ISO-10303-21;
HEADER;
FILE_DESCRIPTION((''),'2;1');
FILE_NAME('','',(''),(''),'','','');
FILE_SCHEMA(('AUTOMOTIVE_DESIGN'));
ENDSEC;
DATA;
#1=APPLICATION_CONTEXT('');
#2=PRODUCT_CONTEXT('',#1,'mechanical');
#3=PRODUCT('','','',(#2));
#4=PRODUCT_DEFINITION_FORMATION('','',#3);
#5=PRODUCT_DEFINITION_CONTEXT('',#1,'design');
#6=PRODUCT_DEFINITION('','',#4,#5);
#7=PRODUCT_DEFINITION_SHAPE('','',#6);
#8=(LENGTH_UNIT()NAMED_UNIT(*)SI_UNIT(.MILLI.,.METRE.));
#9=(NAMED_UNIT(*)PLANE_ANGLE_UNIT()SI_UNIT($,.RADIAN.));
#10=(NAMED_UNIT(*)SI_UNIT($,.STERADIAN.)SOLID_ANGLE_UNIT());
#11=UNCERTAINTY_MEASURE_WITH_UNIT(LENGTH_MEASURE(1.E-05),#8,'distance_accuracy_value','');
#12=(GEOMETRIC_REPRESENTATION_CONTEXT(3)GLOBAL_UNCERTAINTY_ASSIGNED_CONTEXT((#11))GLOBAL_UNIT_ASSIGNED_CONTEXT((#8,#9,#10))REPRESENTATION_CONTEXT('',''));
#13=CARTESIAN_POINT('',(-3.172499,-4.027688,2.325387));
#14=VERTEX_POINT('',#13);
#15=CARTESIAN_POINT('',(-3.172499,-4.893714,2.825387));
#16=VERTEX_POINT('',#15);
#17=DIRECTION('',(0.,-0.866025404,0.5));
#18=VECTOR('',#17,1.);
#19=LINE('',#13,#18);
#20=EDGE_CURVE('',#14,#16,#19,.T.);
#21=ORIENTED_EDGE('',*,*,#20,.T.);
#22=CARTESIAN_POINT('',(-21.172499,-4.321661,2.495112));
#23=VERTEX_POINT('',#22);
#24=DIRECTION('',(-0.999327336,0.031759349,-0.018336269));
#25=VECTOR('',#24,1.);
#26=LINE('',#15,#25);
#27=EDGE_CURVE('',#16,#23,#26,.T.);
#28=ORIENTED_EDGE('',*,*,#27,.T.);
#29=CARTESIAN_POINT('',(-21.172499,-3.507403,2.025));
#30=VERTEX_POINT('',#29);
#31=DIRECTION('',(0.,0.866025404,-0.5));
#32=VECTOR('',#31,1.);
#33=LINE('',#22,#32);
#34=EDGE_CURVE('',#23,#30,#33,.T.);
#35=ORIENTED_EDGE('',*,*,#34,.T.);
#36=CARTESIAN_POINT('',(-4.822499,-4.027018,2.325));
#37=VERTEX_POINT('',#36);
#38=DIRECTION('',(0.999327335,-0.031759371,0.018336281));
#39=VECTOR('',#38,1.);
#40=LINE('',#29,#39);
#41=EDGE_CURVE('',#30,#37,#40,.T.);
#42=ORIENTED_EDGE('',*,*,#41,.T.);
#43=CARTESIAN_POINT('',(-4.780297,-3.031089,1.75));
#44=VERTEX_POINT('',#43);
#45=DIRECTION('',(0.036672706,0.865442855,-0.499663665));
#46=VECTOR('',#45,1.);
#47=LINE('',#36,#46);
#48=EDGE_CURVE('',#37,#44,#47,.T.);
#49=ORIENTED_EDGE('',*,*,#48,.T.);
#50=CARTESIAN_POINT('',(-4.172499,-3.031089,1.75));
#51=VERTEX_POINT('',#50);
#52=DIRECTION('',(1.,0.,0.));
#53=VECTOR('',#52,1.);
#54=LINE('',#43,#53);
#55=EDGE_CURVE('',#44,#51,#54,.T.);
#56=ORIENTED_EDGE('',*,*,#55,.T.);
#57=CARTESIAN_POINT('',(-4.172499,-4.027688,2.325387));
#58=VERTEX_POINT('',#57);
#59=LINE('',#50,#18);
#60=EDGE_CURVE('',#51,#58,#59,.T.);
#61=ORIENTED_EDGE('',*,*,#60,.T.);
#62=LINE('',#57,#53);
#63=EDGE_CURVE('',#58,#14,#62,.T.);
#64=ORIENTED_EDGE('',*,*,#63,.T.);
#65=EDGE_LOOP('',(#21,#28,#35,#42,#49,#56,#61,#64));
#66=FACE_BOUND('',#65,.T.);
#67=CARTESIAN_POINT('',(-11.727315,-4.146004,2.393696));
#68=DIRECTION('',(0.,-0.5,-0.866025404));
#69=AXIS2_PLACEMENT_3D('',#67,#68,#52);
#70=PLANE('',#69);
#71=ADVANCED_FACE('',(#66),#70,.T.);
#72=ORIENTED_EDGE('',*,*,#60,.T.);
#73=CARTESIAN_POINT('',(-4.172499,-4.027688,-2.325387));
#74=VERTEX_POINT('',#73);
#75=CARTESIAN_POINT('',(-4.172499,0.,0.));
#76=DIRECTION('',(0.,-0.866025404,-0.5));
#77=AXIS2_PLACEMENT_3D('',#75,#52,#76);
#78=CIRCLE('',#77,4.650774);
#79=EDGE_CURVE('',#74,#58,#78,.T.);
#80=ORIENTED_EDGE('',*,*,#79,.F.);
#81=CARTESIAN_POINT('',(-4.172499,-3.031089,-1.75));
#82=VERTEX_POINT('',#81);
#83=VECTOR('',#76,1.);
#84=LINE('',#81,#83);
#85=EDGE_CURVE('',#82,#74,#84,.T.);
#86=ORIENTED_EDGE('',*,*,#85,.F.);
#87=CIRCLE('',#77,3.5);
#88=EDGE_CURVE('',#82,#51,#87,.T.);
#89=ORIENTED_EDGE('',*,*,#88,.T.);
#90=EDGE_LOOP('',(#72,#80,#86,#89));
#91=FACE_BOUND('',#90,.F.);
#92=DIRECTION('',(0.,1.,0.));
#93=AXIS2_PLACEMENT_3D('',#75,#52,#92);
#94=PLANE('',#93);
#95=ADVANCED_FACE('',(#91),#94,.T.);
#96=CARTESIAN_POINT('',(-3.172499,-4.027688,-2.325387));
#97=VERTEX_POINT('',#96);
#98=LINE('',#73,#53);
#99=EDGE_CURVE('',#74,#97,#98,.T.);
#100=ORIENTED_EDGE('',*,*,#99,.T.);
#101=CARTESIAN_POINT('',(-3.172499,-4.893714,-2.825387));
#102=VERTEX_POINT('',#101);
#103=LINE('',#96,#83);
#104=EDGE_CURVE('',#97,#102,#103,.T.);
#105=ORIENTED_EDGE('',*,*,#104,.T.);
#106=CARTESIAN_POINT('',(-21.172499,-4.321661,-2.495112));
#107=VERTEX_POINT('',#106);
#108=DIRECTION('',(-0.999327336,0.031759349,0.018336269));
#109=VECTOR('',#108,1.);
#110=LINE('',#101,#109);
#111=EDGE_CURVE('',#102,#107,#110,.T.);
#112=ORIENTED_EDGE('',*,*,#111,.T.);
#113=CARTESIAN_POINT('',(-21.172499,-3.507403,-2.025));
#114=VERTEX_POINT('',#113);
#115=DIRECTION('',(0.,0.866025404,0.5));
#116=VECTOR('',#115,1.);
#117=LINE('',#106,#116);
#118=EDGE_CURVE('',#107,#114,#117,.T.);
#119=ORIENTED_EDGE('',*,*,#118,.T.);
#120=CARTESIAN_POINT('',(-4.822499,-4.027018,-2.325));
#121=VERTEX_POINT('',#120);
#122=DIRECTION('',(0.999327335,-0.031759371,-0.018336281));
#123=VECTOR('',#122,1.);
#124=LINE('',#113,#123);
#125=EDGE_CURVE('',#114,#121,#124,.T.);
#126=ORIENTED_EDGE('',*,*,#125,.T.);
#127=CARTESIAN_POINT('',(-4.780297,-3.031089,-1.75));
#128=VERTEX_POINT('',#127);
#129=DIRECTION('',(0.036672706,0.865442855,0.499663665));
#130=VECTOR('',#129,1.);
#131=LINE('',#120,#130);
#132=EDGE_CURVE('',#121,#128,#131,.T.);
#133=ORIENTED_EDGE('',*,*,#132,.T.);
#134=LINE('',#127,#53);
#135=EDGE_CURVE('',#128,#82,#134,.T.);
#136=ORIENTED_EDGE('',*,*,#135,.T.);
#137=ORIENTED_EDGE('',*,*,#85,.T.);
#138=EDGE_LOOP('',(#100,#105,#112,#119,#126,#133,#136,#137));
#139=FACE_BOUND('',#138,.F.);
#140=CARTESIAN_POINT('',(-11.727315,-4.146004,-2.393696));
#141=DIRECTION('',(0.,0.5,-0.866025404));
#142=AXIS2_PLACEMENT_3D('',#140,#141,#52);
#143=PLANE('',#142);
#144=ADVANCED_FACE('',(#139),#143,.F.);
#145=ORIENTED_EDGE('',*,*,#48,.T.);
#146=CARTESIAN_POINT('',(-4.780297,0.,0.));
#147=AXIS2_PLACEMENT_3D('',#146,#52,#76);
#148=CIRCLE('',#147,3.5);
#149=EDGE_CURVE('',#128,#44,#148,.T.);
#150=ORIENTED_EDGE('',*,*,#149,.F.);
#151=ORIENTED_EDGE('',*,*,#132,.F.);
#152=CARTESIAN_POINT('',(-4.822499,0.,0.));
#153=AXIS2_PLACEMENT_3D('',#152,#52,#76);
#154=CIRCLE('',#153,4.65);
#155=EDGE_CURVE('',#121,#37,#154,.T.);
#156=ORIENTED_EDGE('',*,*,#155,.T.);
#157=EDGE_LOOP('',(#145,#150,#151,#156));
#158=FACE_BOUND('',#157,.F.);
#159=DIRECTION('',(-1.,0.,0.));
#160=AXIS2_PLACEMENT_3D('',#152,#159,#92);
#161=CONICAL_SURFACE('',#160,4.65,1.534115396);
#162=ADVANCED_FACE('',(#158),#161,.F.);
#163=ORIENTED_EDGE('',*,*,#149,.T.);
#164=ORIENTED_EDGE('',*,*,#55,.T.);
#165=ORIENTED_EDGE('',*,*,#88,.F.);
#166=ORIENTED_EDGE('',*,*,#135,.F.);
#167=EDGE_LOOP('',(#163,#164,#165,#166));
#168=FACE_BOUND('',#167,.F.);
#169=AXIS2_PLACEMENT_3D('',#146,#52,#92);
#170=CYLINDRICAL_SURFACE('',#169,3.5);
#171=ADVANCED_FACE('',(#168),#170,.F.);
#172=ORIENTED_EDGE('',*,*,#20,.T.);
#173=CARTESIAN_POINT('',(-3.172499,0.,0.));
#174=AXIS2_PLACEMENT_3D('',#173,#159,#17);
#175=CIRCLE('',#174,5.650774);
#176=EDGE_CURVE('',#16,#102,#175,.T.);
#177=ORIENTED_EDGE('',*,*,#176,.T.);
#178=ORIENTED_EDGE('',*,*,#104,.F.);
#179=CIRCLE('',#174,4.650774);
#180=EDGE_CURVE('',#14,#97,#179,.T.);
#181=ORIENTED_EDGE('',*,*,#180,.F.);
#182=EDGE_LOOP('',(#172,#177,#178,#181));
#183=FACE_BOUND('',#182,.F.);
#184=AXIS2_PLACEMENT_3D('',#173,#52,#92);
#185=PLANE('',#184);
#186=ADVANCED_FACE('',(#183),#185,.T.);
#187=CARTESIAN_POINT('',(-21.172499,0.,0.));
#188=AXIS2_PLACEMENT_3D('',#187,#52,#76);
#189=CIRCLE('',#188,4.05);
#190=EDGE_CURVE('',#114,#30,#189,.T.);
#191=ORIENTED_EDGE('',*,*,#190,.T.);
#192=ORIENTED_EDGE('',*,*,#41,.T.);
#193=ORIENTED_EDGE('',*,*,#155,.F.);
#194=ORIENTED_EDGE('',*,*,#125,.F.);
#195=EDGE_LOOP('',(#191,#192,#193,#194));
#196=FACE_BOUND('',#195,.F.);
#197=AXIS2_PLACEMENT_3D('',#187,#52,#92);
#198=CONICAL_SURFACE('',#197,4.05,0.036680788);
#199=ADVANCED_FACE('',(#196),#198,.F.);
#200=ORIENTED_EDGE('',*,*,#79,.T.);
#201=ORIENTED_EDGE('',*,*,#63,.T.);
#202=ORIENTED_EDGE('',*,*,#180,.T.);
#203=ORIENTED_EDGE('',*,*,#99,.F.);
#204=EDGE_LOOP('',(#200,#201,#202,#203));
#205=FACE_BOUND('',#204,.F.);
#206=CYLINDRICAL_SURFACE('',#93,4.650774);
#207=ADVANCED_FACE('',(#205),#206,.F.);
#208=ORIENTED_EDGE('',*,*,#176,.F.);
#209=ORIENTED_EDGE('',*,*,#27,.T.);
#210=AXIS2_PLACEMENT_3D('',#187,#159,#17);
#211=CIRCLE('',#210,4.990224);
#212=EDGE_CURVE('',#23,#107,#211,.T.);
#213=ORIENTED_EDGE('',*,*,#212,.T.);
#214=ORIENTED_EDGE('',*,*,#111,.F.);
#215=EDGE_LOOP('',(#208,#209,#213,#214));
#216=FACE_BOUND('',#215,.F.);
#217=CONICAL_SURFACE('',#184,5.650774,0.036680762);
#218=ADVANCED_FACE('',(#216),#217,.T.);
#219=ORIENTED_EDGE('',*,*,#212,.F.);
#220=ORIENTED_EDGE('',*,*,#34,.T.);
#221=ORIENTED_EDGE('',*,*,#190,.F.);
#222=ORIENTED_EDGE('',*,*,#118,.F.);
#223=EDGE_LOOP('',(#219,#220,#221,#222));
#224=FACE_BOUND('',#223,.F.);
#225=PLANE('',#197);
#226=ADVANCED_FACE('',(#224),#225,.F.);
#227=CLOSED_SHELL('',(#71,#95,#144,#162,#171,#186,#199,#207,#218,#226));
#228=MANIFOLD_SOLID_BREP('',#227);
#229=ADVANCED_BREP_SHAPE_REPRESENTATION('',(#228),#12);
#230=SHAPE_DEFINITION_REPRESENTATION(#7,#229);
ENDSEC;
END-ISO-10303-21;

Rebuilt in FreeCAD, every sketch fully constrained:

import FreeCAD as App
import Part
import Sketcher

V = App.Vector
Q = App.Units.Quantity

doc = App.newDocument("Part")
body = doc.addObject("PartDesign::Body", "Body")

# Sketch on XY plane
sketch1 = body.newObject("Sketcher::SketchObject", "Sketch")
sketch1.AttachmentSupport = (doc.getObject("XY_Plane"), [""])
sketch1.MapMode = "FlatFace"
sketch1.addGeometry(Part.LineSegment(V(-21.172499, 4.990224, 0), V(-21.172499, 4.05, 0)), False)
sketch1.addGeometry(Part.LineSegment(V(-21.172499, 4.05, 0), V(-4.822499, 4.65, 0)), False)
sketch1.addGeometry(Part.LineSegment(V(-4.822499, 4.65, 0), V(-4.780297, 3.5, 0)), False)
sketch1.addGeometry(Part.LineSegment(V(-4.780297, 3.5, 0), V(-4.172499, 3.5, 0)), False)
sketch1.addGeometry(Part.LineSegment(V(-4.172499, 3.5, 0), V(-4.172499, 4.650774, 0)), False)
sketch1.addGeometry(Part.LineSegment(V(-4.172499, 4.650774, 0), V(-3.172499, 4.650774, 0)), False)
sketch1.addGeometry(Part.LineSegment(V(-3.172499, 4.650774, 0), V(-3.172499, 5.650774, 0)), False)
sketch1.addGeometry(Part.LineSegment(V(-3.172499, 5.650774, 0), V(-21.172499, 4.990224, 0)), False)
sketch1.addConstraint(Sketcher.Constraint("Coincident", 0, 2, 1, 1))
sketch1.addConstraint(Sketcher.Constraint("Coincident", 1, 2, 2, 1))
sketch1.addConstraint(Sketcher.Constraint("Coincident", 2, 2, 3, 1))
sketch1.addConstraint(Sketcher.Constraint("Coincident", 3, 2, 4, 1))
sketch1.addConstraint(Sketcher.Constraint("Coincident", 4, 2, 5, 1))
sketch1.addConstraint(Sketcher.Constraint("Coincident", 5, 2, 6, 1))
sketch1.addConstraint(Sketcher.Constraint("Coincident", 6, 2, 7, 1))
sketch1.addConstraint(Sketcher.Constraint("Coincident", 7, 2, 0, 1))
sketch1.addConstraint(Sketcher.Constraint("Vertical", 0))
sketch1.addConstraint(Sketcher.Constraint("Horizontal", 3))
sketch1.addConstraint(Sketcher.Constraint("Vertical", 4))
sketch1.addConstraint(Sketcher.Constraint("Horizontal", 5))
sketch1.addConstraint(Sketcher.Constraint("Vertical", 6))
sketch1.addConstraint(Sketcher.Constraint("Perpendicular", 1, 2))
sketch1.addConstraint(Sketcher.Constraint("Perpendicular", 2, 7))
sketch1.addConstraint(Sketcher.Constraint("Equal", 5, 6))
sketch1.addConstraint(Sketcher.Constraint("DistanceX", 5, 1, 5, 2, Q("1 mm")))
sketch1.addConstraint(Sketcher.Constraint("DistanceX", 0, 2, 3, 2, Q("17 mm")))
sketch1.addConstraint(Sketcher.Constraint("DistanceY", -1, 1, 2, 2, Q("3.5 mm")))
sketch1.addConstraint(Sketcher.Constraint("DistanceY", 0, 2, 1, 2, Q("0.6 mm")))
sketch1.addConstraint(Sketcher.Constraint("DistanceY", -1, 1, 0, 2, Q("4.05 mm")))
sketch1.addConstraint(Sketcher.Constraint("DistanceX", 0, 2, 1, 2, Q("16.35 mm")))
sketch1.addConstraint(Sketcher.Constraint("DistanceX", 0, 2, -1, 1, Q("21.172499 mm")))
sketch1.addConstraint(Sketcher.Constraint("DistanceY", 0, 2, 0, 1, Q("0.940224 mm")))
revolution = body.newObject("PartDesign::Revolution", "Revolution")
revolution.Profile = sketch1
revolution.ReferenceAxis = (sketch1, ["H_Axis"])
revolution.Angle = 150
revolution.Reversed = True

# Sketch on XY plane
sketch2 = body.newObject("Sketcher::SketchObject", "Sketch001")
sketch2.AttachmentSupport = (doc.getObject("XY_Plane"), [""])
sketch2.MapMode = "FlatFace"
sketch2.addGeometry(Part.LineSegment(V(-21.172499, 4.990224, 0), V(-21.172499, 4.05, 0)), False)
sketch2.addGeometry(Part.LineSegment(V(-21.172499, 4.05, 0), V(-4.822499, 4.65, 0)), False)
sketch2.addGeometry(Part.LineSegment(V(-4.822499, 4.65, 0), V(-4.780297, 3.5, 0)), False)
sketch2.addGeometry(Part.LineSegment(V(-4.780297, 3.5, 0), V(-4.172499, 3.5, 0)), False)
sketch2.addGeometry(Part.LineSegment(V(-4.172499, 3.5, 0), V(-4.172499, 4.650774, 0)), False)
sketch2.addGeometry(Part.LineSegment(V(-4.172499, 4.650774, 0), V(-3.172499, 4.650774, 0)), False)
sketch2.addGeometry(Part.LineSegment(V(-3.172499, 4.650774, 0), V(-3.172499, 5.650774, 0)), False)
sketch2.addGeometry(Part.LineSegment(V(-3.172499, 5.650774, 0), V(-21.172499, 4.990224, 0)), False)
sketch2.addConstraint(Sketcher.Constraint("Coincident", 0, 2, 1, 1))
sketch2.addConstraint(Sketcher.Constraint("Coincident", 1, 2, 2, 1))
sketch2.addConstraint(Sketcher.Constraint("Coincident", 2, 2, 3, 1))
sketch2.addConstraint(Sketcher.Constraint("Coincident", 3, 2, 4, 1))
sketch2.addConstraint(Sketcher.Constraint("Coincident", 4, 2, 5, 1))
sketch2.addConstraint(Sketcher.Constraint("Coincident", 5, 2, 6, 1))
sketch2.addConstraint(Sketcher.Constraint("Coincident", 6, 2, 7, 1))
sketch2.addConstraint(Sketcher.Constraint("Coincident", 7, 2, 0, 1))
sketch2.addConstraint(Sketcher.Constraint("Vertical", 0))
sketch2.addConstraint(Sketcher.Constraint("Horizontal", 3))
sketch2.addConstraint(Sketcher.Constraint("Vertical", 4))
sketch2.addConstraint(Sketcher.Constraint("Horizontal", 5))
sketch2.addConstraint(Sketcher.Constraint("Vertical", 6))
sketch2.addConstraint(Sketcher.Constraint("Perpendicular", 1, 2))
sketch2.addConstraint(Sketcher.Constraint("Perpendicular", 2, 7))
sketch2.addConstraint(Sketcher.Constraint("Equal", 5, 6))
sketch2.addConstraint(Sketcher.Constraint("DistanceX", 5, 1, 5, 2, Q("1 mm")))
sketch2.addConstraint(Sketcher.Constraint("DistanceX", 0, 2, 3, 2, Q("17 mm")))
sketch2.addConstraint(Sketcher.Constraint("DistanceY", -1, 1, 2, 2, Q("3.5 mm")))
sketch2.addConstraint(Sketcher.Constraint("DistanceY", 0, 2, 1, 2, Q("0.6 mm")))
sketch2.addConstraint(Sketcher.Constraint("DistanceY", -1, 1, 0, 2, Q("4.05 mm")))
sketch2.addConstraint(Sketcher.Constraint("DistanceX", 0, 2, 1, 2, Q("16.35 mm")))
sketch2.addConstraint(Sketcher.Constraint("DistanceX", 0, 2, -1, 1, Q("21.172499 mm")))
sketch2.addConstraint(Sketcher.Constraint("DistanceY", 0, 2, 0, 1, Q("0.940224 mm")))
revolution2 = body.newObject("PartDesign::Revolution", "Revolution001")
revolution2.Profile = sketch2
revolution2.ReferenceAxis = (sketch2, ["H_Axis"])
revolution2.Angle = 150

doc.recompute()
